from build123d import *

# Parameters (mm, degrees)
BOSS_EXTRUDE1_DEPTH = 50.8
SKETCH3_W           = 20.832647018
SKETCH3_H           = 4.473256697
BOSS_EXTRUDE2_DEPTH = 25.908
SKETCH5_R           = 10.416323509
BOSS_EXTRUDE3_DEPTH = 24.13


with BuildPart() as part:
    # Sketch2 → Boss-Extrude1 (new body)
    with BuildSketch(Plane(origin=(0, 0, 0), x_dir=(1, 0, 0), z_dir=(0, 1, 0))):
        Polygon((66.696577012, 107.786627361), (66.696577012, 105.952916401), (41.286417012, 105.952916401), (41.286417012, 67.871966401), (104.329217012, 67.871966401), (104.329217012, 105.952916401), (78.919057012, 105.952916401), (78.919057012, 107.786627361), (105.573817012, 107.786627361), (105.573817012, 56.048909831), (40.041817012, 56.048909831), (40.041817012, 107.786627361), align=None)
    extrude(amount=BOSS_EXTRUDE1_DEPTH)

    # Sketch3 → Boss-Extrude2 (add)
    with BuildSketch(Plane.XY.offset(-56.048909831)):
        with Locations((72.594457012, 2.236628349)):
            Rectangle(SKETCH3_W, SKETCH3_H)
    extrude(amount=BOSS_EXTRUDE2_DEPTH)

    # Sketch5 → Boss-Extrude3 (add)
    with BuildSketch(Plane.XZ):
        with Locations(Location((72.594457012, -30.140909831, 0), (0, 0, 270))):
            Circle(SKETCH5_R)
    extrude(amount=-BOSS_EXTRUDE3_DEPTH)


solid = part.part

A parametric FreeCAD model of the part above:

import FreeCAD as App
import Part
import Sketcher
from FreeCAD import Vector
Q = App.Units.Quantity


def add_polygon(sketch, points):
    """Adds a closed chain of lines whose ends are joined by coincident constraints."""
    first, n = sketch.GeometryCount, len(points)
    for a, b in zip(points, points[1:] + points[:1]):
        sketch.addGeometry(Part.LineSegment(App.Vector(*a, 0), App.Vector(*b, 0)), False)
    for i in range(n):
        sketch.addConstraint(Sketcher.Constraint("Coincident", first + i, 2, first + (i + 1) % n, 1))

doc = App.newDocument("Part")
body = doc.addObject("PartDesign::Body", "Body")

sketch1 = doc.addObject("Sketcher::SketchObject", "Sketch")
body.addObject(sketch1)
sketch1.AttachmentSupport = (doc.XZ_Plane, [""])
sketch1.MapMode = "FlatFace"
add_polygon(sketch1, [(66.7, -106), (66.7, -107.8), (40, -107.8), (40, -56), (105.6, -56), (105.6, -107.8), (78.9, -107.8), (78.9, -106), (104.3, -106), (104.3, -67.9), (41.3, -67.9), (41.3, -106)])
sketch1.addConstraint([
    Sketcher.Constraint("Vertical", 0),
    Sketcher.Constraint("Horizontal", 1),
    Sketcher.Constraint("Vertical", 2),
    Sketcher.Constraint("Horizontal", 3),
    Sketcher.Constraint("Vertical", 4),
    Sketcher.Constraint("Horizontal", 5),
    Sketcher.Constraint("Vertical", 6),
    Sketcher.Constraint("Horizontal", 7),
    Sketcher.Constraint("Vertical", 8),
    Sketcher.Constraint("Horizontal", 9),
    Sketcher.Constraint("Vertical", 10),
    Sketcher.Constraint("Horizontal", 11),
    Sketcher.Constraint("Horizontal", 1, 2, 4, 2),
    Sketcher.Constraint("Horizontal", 7, 2, 10, 2),
    Sketcher.Constraint("Equal", 1, 5),
    Sketcher.Constraint("Equal", 7, 11),
    Sketcher.Constraint("DistanceX", 3, 1, 3, 2, Q("2.58 in")),
    Sketcher.Constraint("DistanceX", 9, 2, 9, 1, Q("2.482 in")),
    Sketcher.Constraint("DistanceX", 1, 2, 1, 1, Q("1.0494 in")),
    Sketcher.Constraint("DistanceY", 0, 2, 0, 1, Q("1.833711 mm")),
    Sketcher.Constraint("DistanceY", 8, 1, 8, 2, Q("38.08095 mm")),
    Sketcher.Constraint("DistanceY", 2, 1, 2, 2, Q("51.737718 mm")),
    Sketcher.Constraint("DistanceY", 2, 2, -1, 1, Q("56.04891 mm")),
    Sketcher.Constraint("DistanceX", -1, 1, 0, 2, Q("66.696577 mm")),
])
pad1 = doc.addObject("PartDesign::Pad", "Pad")
body.addObject(pad1)
pad1.Profile = sketch1
pad1.Length = Q("2 in")
pad1.Reversed = True

sketch2 = doc.addObject("Sketcher::SketchObject", "Sketch001")
body.addObject(sketch2)
sketch2.AttachmentSupport = (doc.XY_Plane, [""])
sketch2.MapMode = "FlatFace"
sketch2.AttachmentOffset = App.Placement(Vector(0, 0, -56.04891), App.Rotation())
add_polygon(sketch2, [(62.2, 4.5), (62.2, 0), (83, 0), (83, 4.5)])
sketch2.addConstraint([
    Sketcher.Constraint("Vertical", 0),
    Sketcher.Constraint("Horizontal", 1),
    Sketcher.Constraint("Vertical", 2),
    Sketcher.Constraint("Horizontal", 3),
    Sketcher.Constraint("PointOnObject", 0, 2, -1),
    Sketcher.Constraint("DistanceX", 1, 1, 1, 2, Q("20.832647 mm")),
    Sketcher.Constraint("DistanceY", 0, 2, 0, 1, Q("4.473257 mm")),
    Sketcher.Constraint("DistanceX", -1, 1, 1, 2, Q("83.010781 mm")),
])
pad2 = doc.addObject("PartDesign::Pad", "Pad001")
body.addObject(pad2)
pad2.Profile = sketch2
pad2.Length = Q("1.02 in")

sketch3 = doc.addObject("Sketcher::SketchObject", "Sketch002")
body.addObject(sketch3)
sketch3.AttachmentSupport = (doc.XZ_Plane, [""])
sketch3.MapMode = "FlatFace"
sketch3.addGeometry(Part.Circle(Vector(73, -30, 0), Vector(0, 0, 1), 10), False)
sketch3.addConstraint([
    Sketcher.Constraint("Diameter", 0, Q("20.832647 mm")),
    Sketcher.Constraint("DistanceY", 0, 3, -1, 1, Q("30.14091 mm")),
    Sketcher.Constraint("DistanceX", -1, 1, 0, 3, Q("72.594457 mm")),
])
pad3 = doc.addObject("PartDesign::Pad", "Pad002")
body.addObject(pad3)
pad3.Profile = sketch3
pad3.Length = Q("0.95 in")
pad3.Reversed = True

doc.recompute()
